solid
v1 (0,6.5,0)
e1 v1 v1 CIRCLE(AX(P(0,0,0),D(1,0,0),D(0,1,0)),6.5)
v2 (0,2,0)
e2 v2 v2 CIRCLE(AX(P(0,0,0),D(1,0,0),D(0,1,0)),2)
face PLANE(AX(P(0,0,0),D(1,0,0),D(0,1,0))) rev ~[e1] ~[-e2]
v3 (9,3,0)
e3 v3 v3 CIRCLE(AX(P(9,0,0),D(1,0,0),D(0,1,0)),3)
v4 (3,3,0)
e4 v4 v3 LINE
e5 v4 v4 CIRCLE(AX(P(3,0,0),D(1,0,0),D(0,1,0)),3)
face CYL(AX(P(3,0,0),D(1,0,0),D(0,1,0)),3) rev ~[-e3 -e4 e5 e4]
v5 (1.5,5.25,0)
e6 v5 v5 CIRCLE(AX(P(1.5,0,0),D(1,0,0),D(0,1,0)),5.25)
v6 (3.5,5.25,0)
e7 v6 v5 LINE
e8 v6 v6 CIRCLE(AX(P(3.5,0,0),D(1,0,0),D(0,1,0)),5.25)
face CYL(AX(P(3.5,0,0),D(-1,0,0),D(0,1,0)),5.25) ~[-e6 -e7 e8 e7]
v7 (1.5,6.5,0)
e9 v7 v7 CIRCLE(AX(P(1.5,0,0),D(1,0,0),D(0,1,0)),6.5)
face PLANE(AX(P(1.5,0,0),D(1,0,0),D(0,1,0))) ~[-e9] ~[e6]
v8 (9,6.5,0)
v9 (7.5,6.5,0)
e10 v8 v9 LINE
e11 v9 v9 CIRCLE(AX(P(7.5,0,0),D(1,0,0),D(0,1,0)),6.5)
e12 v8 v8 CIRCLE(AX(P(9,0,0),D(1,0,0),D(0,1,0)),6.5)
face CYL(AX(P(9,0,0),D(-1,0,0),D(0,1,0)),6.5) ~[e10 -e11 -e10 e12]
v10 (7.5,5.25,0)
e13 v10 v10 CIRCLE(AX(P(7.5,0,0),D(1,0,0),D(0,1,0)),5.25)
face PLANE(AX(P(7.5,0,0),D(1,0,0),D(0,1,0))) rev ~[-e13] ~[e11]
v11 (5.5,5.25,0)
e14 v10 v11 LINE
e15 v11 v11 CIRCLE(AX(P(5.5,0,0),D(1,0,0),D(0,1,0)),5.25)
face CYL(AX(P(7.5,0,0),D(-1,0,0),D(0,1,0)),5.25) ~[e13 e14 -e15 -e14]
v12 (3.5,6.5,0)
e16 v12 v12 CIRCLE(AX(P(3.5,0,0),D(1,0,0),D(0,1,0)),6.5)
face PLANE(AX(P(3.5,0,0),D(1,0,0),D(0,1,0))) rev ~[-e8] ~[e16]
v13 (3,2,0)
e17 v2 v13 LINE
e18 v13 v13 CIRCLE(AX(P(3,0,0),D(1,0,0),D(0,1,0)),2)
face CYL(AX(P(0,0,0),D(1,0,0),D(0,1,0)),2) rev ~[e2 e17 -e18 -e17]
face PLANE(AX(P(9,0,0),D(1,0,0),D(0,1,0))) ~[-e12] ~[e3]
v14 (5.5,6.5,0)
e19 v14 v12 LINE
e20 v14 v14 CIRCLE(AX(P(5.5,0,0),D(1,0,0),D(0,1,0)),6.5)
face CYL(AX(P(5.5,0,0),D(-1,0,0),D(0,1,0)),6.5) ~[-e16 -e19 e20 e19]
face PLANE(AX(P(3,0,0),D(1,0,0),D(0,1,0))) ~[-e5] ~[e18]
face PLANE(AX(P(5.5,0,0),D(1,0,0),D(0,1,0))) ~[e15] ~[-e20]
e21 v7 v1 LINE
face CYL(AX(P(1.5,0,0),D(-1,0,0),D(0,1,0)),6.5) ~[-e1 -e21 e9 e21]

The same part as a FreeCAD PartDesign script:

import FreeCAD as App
import Part
import Sketcher
from FreeCAD import Vector

doc = App.newDocument("Part")
body = doc.addObject("PartDesign::Body", "Body")

# Sketch on XY plane
sketch1 = doc.addObject("Sketcher::SketchObject", "Sketch")
body.addObject(sketch1)
sketch1.AttachmentSupport = (doc.XY_Plane, [""])
sketch1.MapMode = "FlatFace"
sketch1.addGeometry([
    Part.LineSegment(Vector(0, 6.5, 0), Vector(0, 2, 0)),  # 0
    Part.LineSegment(Vector(0, 2, 0), Vector(3, 2, 0)),  # 1
    Part.LineSegment(Vector(3, 2, 0), Vector(3, 3, 0)),  # 2
    Part.LineSegment(Vector(3, 3, 0), Vector(9, 3, 0)),  # 3
    Part.LineSegment(Vector(9, 3, 0), Vector(9, 6.5, 0)),  # 4
    Part.LineSegment(Vector(9, 6.5, 0), Vector(7.5, 6.5, 0)),  # 5
    Part.LineSegment(Vector(7.5, 6.5, 0), Vector(7.5, 5.2, 0)),  # 6
    Part.LineSegment(Vector(7.5, 5.2, 0), Vector(5.5, 5.2, 0)),  # 7
    Part.LineSegment(Vector(5.5, 5.2, 0), Vector(5.5, 6.5, 0)),  # 8
    Part.LineSegment(Vector(5.5, 6.5, 0), Vector(3.5, 6.5, 0)),  # 9
    Part.LineSegment(Vector(3.5, 6.5, 0), Vector(3.5, 5.2, 0)),  # 10
    Part.LineSegment(Vector(3.5, 5.2, 0), Vector(1.5, 5.2, 0)),  # 11
    Part.LineSegment(Vector(1.5, 5.2, 0), Vector(1.5, 6.5, 0)),  # 12
    Part.LineSegment(Vector(1.5, 6.5, 0), Vector(0, 6.5, 0)),  # 13
], False)
sketch1.addConstraint([
    Sketcher.Constraint("Coincident", 0, 2, 1, 1),
    Sketcher.Constraint("Coincident", 1, 2, 2, 1),
    Sketcher.Constraint("Coincident", 2, 2, 3, 1),
    Sketcher.Constraint("Coincident", 3, 2, 4, 1),
    Sketcher.Constraint("Coincident", 4, 2, 5, 1),
    Sketcher.Constraint("Coincident", 5, 2, 6, 1),
    Sketcher.Constraint("Coincident", 6, 2, 7, 1),
    Sketcher.Constraint("Coincident", 7, 2, 8, 1),
    Sketcher.Constraint("Coincident", 8, 2, 9, 1),
    Sketcher.Constraint("Coincident", 9, 2, 10, 1),
    Sketcher.Constraint("Coincident", 10, 2, 11, 1),
    Sketcher.Constraint("Coincident", 11, 2, 12, 1),
    Sketcher.Constraint("Coincident", 12, 2, 13, 1),
    Sketcher.Constraint("Coincident", 13, 2, 0, 1),
    Sketcher.Constraint("Vertical", 0),
    Sketcher.Constraint("Horizontal", 1),
    Sketcher.Constraint("Vertical", 2),
    Sketcher.Constraint("Horizontal", 3),
    Sketcher.Constraint("Vertical", 4),
    Sketcher.Constraint("Horizontal", 5),
    Sketcher.Constraint("Vertical", 6),
    Sketcher.Constraint("Horizontal", 7),
    Sketcher.Constraint("Vertical", 8),
    Sketcher.Constraint("Horizontal", 9),
    Sketcher.Constraint("Vertical", 10),
    Sketcher.Constraint("Horizontal", 11),
    Sketcher.Constraint("Vertical", 12),
    Sketcher.Constraint("Horizontal", 13),
    Sketcher.Constraint("PointOnObject", 0, 2, -2),
    Sketcher.Constraint("Horizontal", 5, 2, 8, 2),
    Sketcher.Constraint("Horizontal", 7, 2, 10, 2),
    Sketcher.Constraint("Horizontal", 9, 2, 12, 2),
    Sketcher.Constraint("Equal", 7, 9),
    Sketcher.Constraint("Equal", 9, 11),
    Sketcher.Constraint("Equal", 5, 13),
    Sketcher.Constraint("DistanceX", 1, 1, 1, 2, 3.0),
    Sketcher.Constraint("DistanceX", 3, 1, 3, 2, 6.0),
    Sketcher.Constraint("DistanceX", 7, 2, 7, 1, 2.0),
    Sketcher.Constraint("DistanceY", 2, 1, 2, 2, 1.0),
    Sketcher.Constraint("DistanceY", 0, 2, 0, 1, 4.5),
    Sketcher.Constraint("DistanceY", -1, 1, 0, 2, 2.0),
    Sketcher.Constraint("DistanceY", 6, 2, 6, 1, 1.25),
])
revolution = doc.addObject("PartDesign::Revolution", "Revolution")
body.addObject(revolution)
revolution.Profile = sketch1
revolution.ReferenceAxis = (sketch1, ["H_Axis"])
revolution.Angle = 360

doc.recompute()
